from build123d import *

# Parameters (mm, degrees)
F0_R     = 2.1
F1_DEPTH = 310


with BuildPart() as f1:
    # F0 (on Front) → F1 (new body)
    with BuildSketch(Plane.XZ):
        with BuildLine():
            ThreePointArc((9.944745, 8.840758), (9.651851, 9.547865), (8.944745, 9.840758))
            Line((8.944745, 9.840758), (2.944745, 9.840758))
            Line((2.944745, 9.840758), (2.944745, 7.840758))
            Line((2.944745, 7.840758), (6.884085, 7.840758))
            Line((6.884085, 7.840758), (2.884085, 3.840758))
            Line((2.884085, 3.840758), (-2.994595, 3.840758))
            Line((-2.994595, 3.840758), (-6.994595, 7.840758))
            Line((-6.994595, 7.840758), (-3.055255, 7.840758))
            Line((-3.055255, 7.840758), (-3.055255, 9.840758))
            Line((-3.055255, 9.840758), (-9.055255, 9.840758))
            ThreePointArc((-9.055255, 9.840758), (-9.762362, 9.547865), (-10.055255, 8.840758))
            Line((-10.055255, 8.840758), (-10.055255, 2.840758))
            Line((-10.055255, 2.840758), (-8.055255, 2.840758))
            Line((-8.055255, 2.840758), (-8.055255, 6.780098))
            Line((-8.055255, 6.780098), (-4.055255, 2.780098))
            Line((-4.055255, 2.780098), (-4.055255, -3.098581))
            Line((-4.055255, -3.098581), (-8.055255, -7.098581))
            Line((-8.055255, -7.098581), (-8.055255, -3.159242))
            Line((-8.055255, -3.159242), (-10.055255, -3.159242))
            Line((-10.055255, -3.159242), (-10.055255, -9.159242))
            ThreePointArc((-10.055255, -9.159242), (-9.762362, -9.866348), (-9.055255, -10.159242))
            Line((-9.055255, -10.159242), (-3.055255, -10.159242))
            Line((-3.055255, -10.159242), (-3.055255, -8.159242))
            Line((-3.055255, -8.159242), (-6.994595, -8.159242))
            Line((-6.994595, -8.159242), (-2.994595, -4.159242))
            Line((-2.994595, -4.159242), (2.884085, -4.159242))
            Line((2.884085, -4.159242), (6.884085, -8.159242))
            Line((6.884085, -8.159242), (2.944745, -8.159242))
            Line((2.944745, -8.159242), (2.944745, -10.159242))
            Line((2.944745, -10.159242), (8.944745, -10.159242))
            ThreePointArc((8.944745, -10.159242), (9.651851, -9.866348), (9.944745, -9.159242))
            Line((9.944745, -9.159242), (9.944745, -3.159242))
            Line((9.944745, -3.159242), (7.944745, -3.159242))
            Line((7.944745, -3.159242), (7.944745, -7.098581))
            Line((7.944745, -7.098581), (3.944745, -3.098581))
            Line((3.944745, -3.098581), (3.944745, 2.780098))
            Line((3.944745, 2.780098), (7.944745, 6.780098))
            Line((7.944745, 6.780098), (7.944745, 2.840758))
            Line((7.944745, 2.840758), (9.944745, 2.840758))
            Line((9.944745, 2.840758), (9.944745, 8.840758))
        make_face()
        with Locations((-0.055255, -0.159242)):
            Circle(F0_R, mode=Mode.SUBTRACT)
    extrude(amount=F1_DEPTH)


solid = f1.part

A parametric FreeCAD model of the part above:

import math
import FreeCAD as App
import Part
import Sketcher
from FreeCAD import Vector

doc = App.newDocument("Part")
body = doc.addObject("PartDesign::Body", "Body")

sketch1 = doc.addObject("Sketcher::SketchObject", "Sketch")
body.addObject(sketch1)
sketch1.AttachmentSupport = (doc.XZ_Plane, [""])
sketch1.MapMode = "FlatFace"
sketch1.addGeometry(Part.ArcOfCircle(Part.Circle(Vector(8.944744, 8.840757, 0), Vector(0, 0, 1), 1.000001), math.radians(0.000055), math.radians(89.999945)), False)
sketch1.addGeometry(Part.LineSegment(Vector(8.944745, 9.840758, 0), Vector(2.944745, 9.840758, 0)), False)
sketch1.addGeometry(Part.LineSegment(Vector(2.944745, 9.840758, 0), Vector(2.944745, 7.840758, 0)), False)
sketch1.addGeometry(Part.LineSegment(Vector(2.944745, 7.840758, 0), Vector(6.884085, 7.840758, 0)), False)
sketch1.addGeometry(Part.LineSegment(Vector(6.884085, 7.840758, 0), Vector(2.884085, 3.840758, 0)), False)
sketch1.addGeometry(Part.LineSegment(Vector(2.884085, 3.840758, 0), Vector(-2.994595, 3.840758, 0)), False)
sketch1.addGeometry(Part.LineSegment(Vector(-2.994595, 3.840758, 0), Vector(-6.994595, 7.840758, 0)), False)
sketch1.addGeometry(Part.LineSegment(Vector(-6.994595, 7.840758, 0), Vector(-3.055255, 7.840758, 0)), False)
sketch1.addGeometry(Part.LineSegment(Vector(-3.055255, 7.840758, 0), Vector(-3.055255, 9.840758, 0)), False)
sketch1.addGeometry(Part.LineSegment(Vector(-3.055255, 9.840758, 0), Vector(-9.055255, 9.840758, 0)), False)
sketch1.addGeometry(Part.ArcOfCircle(Part.Circle(Vector(-9.055256, 8.840759, 0), Vector(0, 0, 1), 0.999999), math.radians(89.999957), math.radians(180.000043)), False)
sketch1.addGeometry(Part.LineSegment(Vector(-10.055255, 8.840758, 0), Vector(-10.055255, 2.840758, 0)), False)
sketch1.addGeometry(Part.LineSegment(Vector(-10.055255, 2.840758, 0), Vector(-8.055255, 2.840758, 0)), False)
sketch1.addGeometry(Part.LineSegment(Vector(-8.055255, 2.840758, 0), Vector(-8.055255, 6.780098, 0)), False)
sketch1.addGeometry(Part.LineSegment(Vector(-8.055255, 6.780098, 0), Vector(-4.055255, 2.780098, 0)), False)
sketch1.addGeometry(Part.LineSegment(Vector(-4.055255, 2.780098, 0), Vector(-4.055255, -3.098581, 0)), False)
sketch1.addGeometry(Part.LineSegment(Vector(-4.055255, -3.098581, 0), Vector(-8.055255, -7.098581, 0)), False)
sketch1.addGeometry(Part.LineSegment(Vector(-8.055255, -7.098581, 0), Vector(-8.055255, -3.159242, 0)), False)
sketch1.addGeometry(Part.LineSegment(Vector(-8.055255, -3.159242, 0), Vector(-10.055255, -3.159242, 0)), False)
sketch1.addGeometry(Part.LineSegment(Vector(-10.055255, -3.159242, 0), Vector(-10.055255, -9.159242, 0)), False)
sketch1.addGeometry(Part.ArcOfCircle(Part.Circle(Vector(-9.055254, -9.159241, 0), Vector(0, 0, 1), 1.000001), math.radians(-179.999945), math.radians(-90.000055)), False)
sketch1.addGeometry(Part.LineSegment(Vector(-9.055255, -10.159242, 0), Vector(-3.055255, -10.159242, 0)), False)
sketch1.addGeometry(Part.LineSegment(Vector(-3.055255, -10.159242, 0), Vector(-3.055255, -8.159242, 0)), False)
sketch1.addGeometry(Part.LineSegment(Vector(-3.055255, -8.159242, 0), Vector(-6.994595, -8.159242, 0)), False)
sketch1.addGeometry(Part.LineSegment(Vector(-6.994595, -8.159242, 0), Vector(-2.994595, -4.159242, 0)), False)
sketch1.addGeometry(Part.LineSegment(Vector(-2.994595, -4.159242, 0), Vector(2.884085, -4.159242, 0)), False)
sketch1.addGeometry(Part.LineSegment(Vector(2.884085, -4.159242, 0), Vector(6.884085, -8.159242, 0)), False)
sketch1.addGeometry(Part.LineSegment(Vector(6.884085, -8.159242, 0), Vector(2.944745, -8.159242, 0)), False)
sketch1.addGeometry(Part.LineSegment(Vector(2.944745, -8.159242, 0), Vector(2.944745, -10.159242, 0)), False)
sketch1.addGeometry(Part.LineSegment(Vector(2.944745, -10.159242, 0), Vector(8.944745, -10.159242, 0)), False)
sketch1.addGeometry(Part.ArcOfCircle(Part.Circle(Vector(8.944742, -9.159239, 0), Vector(0, 0, 1), 1.000003), math.radians(-89.999847), math.radians(-0.000153)), False)
sketch1.addGeometry(Part.LineSegment(Vector(9.944745, -9.159242, 0), Vector(9.944745, -3.159242, 0)), False)
sketch1.addGeometry(Part.LineSegment(Vector(9.944745, -3.159242, 0), Vector(7.944745, -3.159242, 0)), False)
sketch1.addGeometry(Part.LineSegment(Vector(7.944745, -3.159242, 0), Vector(7.944745, -7.098581, 0)), False)
sketch1.addGeometry(Part.LineSegment(Vector(7.944745, -7.098581, 0), Vector(3.944745, -3.098581, 0)), False)
sketch1.addGeometry(Part.LineSegment(Vector(3.944745, -3.098581, 0), Vector(3.944745, 2.780098, 0)), False)
sketch1.addGeometry(Part.LineSegment(Vector(3.944745, 2.780098, 0), Vector(7.944745, 6.780098, 0)), False)
sketch1.addGeometry(Part.LineSegment(Vector(7.944745, 6.780098, 0), Vector(7.944745, 2.840758, 0)), False)
sketch1.addGeometry(Part.LineSegment(Vector(7.944745, 2.840758, 0), Vector(9.944745, 2.840758, 0)), False)
sketch1.addGeometry(Part.LineSegment(Vector(9.944745, 2.840758, 0), Vector(9.944745, 8.840758, 0)), False)
sketch1.addGeometry(Part.Circle(Vector(-0.055255, -0.159242, 0), Vector(0, 0, 1), 2.1), False)
sketch1.addConstraint(Sketcher.Constraint("Tangent", 0, 2, 1, 1))
sketch1.addConstraint(Sketcher.Constraint("Coincident", 1, 2, 2, 1))
sketch1.addConstraint(Sketcher.Constraint("Coincident", 2, 2, 3, 1))
sketch1.addConstraint(Sketcher.Constraint("Coincident", 3, 2, 4, 1))
sketch1.addConstraint(Sketcher.Constraint("Coincident", 4, 2, 5, 1))
sketch1.addConstraint(Sketcher.Constraint("Coincident", 5, 2, 6, 1))
sketch1.addConstraint(Sketcher.Constraint("Coincident", 6, 2, 7, 1))
sketch1.addConstraint(Sketcher.Constraint("Coincident", 7, 2, 8, 1))
sketch1.addConstraint(Sketcher.Constraint("Coincident", 8, 2, 9, 1))
sketch1.addConstraint(Sketcher.Constraint("Tangent", 9, 2, 10, 1))
sketch1.addConstraint(Sketcher.Constraint("Tangent", 10, 2, 11, 1))
sketch1.addConstraint(Sketcher.Constraint("Coincident", 11, 2, 12, 1))
sketch1.addConstraint(Sketcher.Constraint("Coincident", 12, 2, 13, 1))
sketch1.addConstraint(Sketcher.Constraint("Coincident", 13, 2, 14, 1))
sketch1.addConstraint(Sketcher.Constraint("Coincident", 14, 2, 15, 1))
sketch1.addConstraint(Sketcher.Constraint("Coincident", 15, 2, 16, 1))
sketch1.addConstraint(Sketcher.Constraint("Coincident", 16, 2, 17, 1))
sketch1.addConstraint(Sketcher.Constraint("Coincident", 17, 2, 18, 1))
sketch1.addConstraint(Sketcher.Constraint("Coincident", 18, 2, 19, 1))
sketch1.addConstraint(Sketcher.Constraint("Tangent", 19, 2, 20, 1))
sketch1.addConstraint(Sketcher.Constraint("Tangent", 20, 2, 21, 1))
sketch1.addConstraint(Sketcher.Constraint("Coincident", 21, 2, 22, 1))
sketch1.addConstraint(Sketcher.Constraint("Coincident", 22, 2, 23, 1))
sketch1.addConstraint(Sketcher.Constraint("Coincident", 23, 2, 24, 1))
sketch1.addConstraint(Sketcher.Constraint("Coincident", 24, 2, 25, 1))
sketch1.addConstraint(Sketcher.Constraint("Coincident", 25, 2, 26, 1))
sketch1.addConstraint(Sketcher.Constraint("Coincident", 26, 2, 27, 1))
sketch1.addConstraint(Sketcher.Constraint("Coincident", 27, 2, 28, 1))
sketch1.addConstraint(Sketcher.Constraint("Coincident", 28, 2, 29, 1))
sketch1.addConstraint(Sketcher.Constraint("Coincident", 29, 2, 30, 1))
sketch1.addConstraint(Sketcher.Constraint("Coincident", 30, 2, 31, 1))
sketch1.addConstraint(Sketcher.Constraint("Coincident", 31, 2, 32, 1))
sketch1.addConstraint(Sketcher.Constraint("Coincident", 32, 2, 33, 1))
sketch1.addConstraint(Sketcher.Constraint("Coincident", 33, 2, 34, 1))
sketch1.addConstraint(Sketcher.Constraint("Coincident", 34, 2, 35, 1))
sketch1.addConstraint(Sketcher.Constraint("Coincident", 35, 2, 36, 1))
sketch1.addConstraint(Sketcher.Constraint("Coincident", 36, 2, 37, 1))
sketch1.addConstraint(Sketcher.Constraint("Coincident", 37, 2, 38, 1))
sketch1.addConstraint(Sketcher.Constraint("Coincident", 38, 2, 39, 1))
sketch1.addConstraint(Sketcher.Constraint("Tangent", 39, 2, 0, 1))
sketch1.addConstraint(Sketcher.Constraint("Horizontal", 1))
sketch1.addConstraint(Sketcher.Constraint("Vertical", 2))
sketch1.addConstraint(Sketcher.Constraint("Horizontal", 3))
sketch1.addConstraint(Sketcher.Constraint("Horizontal", 5))
sketch1.addConstraint(Sketcher.Constraint("Horizontal", 7))
sketch1.addConstraint(Sketcher.Constraint("Vertical", 8))
sketch1.addConstraint(Sketcher.Constraint("Horizontal", 9))
sketch1.addConstraint(Sketcher.Constraint("Vertical", 11))
sketch1.addConstraint(Sketcher.Constraint("Horizontal", 12))
sketch1.addConstraint(Sketcher.Constraint("Vertical", 13))
sketch1.addConstraint(Sketcher.Constraint("Vertical", 15))
sketch1.addConstraint(Sketcher.Constraint("Vertical", 17))
sketch1.addConstraint(Sketcher.Constraint("Horizontal", 18))
sketch1.addConstraint(Sketcher.Constraint("Vertical", 19))
sketch1.addConstraint(Sketcher.Constraint("Horizontal", 21))
sketch1.addConstraint(Sketcher.Constraint("Vertical", 22))
sketch1.addConstraint(Sketcher.Constraint("Horizontal", 23))
sketch1.addConstraint(Sketcher.Constraint("Horizontal", 25))
sketch1.addConstraint(Sketcher.Constraint("Horizontal", 27))
sketch1.addConstraint(Sketcher.Constraint("Vertical", 28))
sketch1.addConstraint(Sketcher.Constraint("Horizontal", 29))
sketch1.addConstraint(Sketcher.Constraint("Vertical", 31))
sketch1.addConstraint(Sketcher.Constraint("Horizontal", 32))
sketch1.addConstraint(Sketcher.Constraint("Vertical", 33))
sketch1.addConstraint(Sketcher.Constraint("Vertical", 35))
sketch1.addConstraint(Sketcher.Constraint("Vertical", 37))
sketch1.addConstraint(Sketcher.Constraint("Horizontal", 38))
sketch1.addConstraint(Sketcher.Constraint("Vertical", 39))
sketch1.addConstraint(Sketcher.Constraint("Equal", 0, 10))
sketch1.addConstraint(Sketcher.Constraint("Equal", 10, 20))
sketch1.addConstraint(Sketcher.Constraint("Equal", 20, 30))
sketch1.addConstraint(Sketcher.Constraint("Perpendicular", 4, 6))
sketch1.addConstraint(Sketcher.Constraint("Parallel", 6, 14))
sketch1.addConstraint(Sketcher.Constraint("Perpendicular", 14, 16))
sketch1.addConstraint(Sketcher.Constraint("Parallel", 16, 24))
sketch1.addConstraint(Sketcher.Constraint("Perpendicular", 24, 26))
sketch1.addConstraint(Sketcher.Constraint("Parallel", 26, 34))
sketch1.addConstraint(Sketcher.Constraint("Perpendicular", 34, 36))
sketch1.addConstraint(Sketcher.Constraint("Horizontal", 0, 3, 10, 3))
sketch1.addConstraint(Sketcher.Constraint("Horizontal", 20, 3, 30, 3))
sketch1.addConstraint(Sketcher.Constraint("Horizontal", 3, 2, 6, 2))
sketch1.addConstraint(Sketcher.Constraint("Horizontal", 23, 2, 26, 2))
sketch1.addConstraint(Sketcher.Constraint("Horizontal", 19, 2, 30, 2))
sketch1.addConstraint(Sketcher.Constraint("Horizontal", 18, 2, 31, 2))
sketch1.addConstraint(Sketcher.Constraint("Horizontal", 16, 2, 33, 2))
sketch1.addConstraint(Sketcher.Constraint("Horizontal", 15, 2, 34, 2))
sketch1.addConstraint(Sketcher.Constraint("Horizontal", 14, 2, 35, 2))
sketch1.addConstraint(Sketcher.Constraint("Horizontal", 13, 2, 36, 2))
sketch1.addConstraint(Sketcher.Constraint("Horizontal", 12, 2, 37, 2))
sketch1.addConstraint(Sketcher.Constraint("Vertical", 10, 3, 20, 3))
sketch1.addConstraint(Sketcher.Constraint("Vertical", 0, 3, 30, 3))
sketch1.addConstraint(Sketcher.Constraint("Vertical", 13, 2, 16, 2))
sketch1.addConstraint(Sketcher.Constraint("Vertical", 8, 2, 21, 2))
sketch1.addConstraint(Sketcher.Constraint("Vertical", 6, 2, 23, 2))
sketch1.addConstraint(Sketcher.Constraint("Vertical", 5, 2, 24, 2))
sketch1.addConstraint(Sketcher.Constraint("Vertical", 4, 2, 25, 2))
sketch1.addConstraint(Sketcher.Constraint("Vertical", 3, 2, 26, 2))
sketch1.addConstraint(Sketcher.Constraint("Vertical", 2, 2, 27, 2))
sketch1.addConstraint(Sketcher.Constraint("Vertical", 0, 2, 29, 2))
sketch1.addConstraint(Sketcher.Constraint("Equal", 3, 7))
sketch1.addConstraint(Sketcher.Constraint("Equal", 1, 9))
sketch1.addConstraint(Sketcher.Constraint("Equal", 18, 32))
sketch1.addConstraint(Sketcher.Constraint("Equal", 38, 2))
sketch1.addConstraint(Sketcher.Constraint("Equal", 29, 11))
sketch1.addConstraint(Sketcher.Constraint("Equal", 27, 13))
sketch1.addConstraint(Sketcher.Constraint("Equal", 25, 15))
sketch1.addConstraint(Sketcher.Constraint("Equal", 13, 17))
sketch1.addConstraint(Sketcher.Constraint("Equal", 11, 19))
sketch1.addConstraint(Sketcher.Constraint("Equal", 8, 22))
sketch1.addConstraint(Sketcher.Constraint("Equal", 6, 14))
sketch1.addConstraint(Sketcher.Constraint("Radius", 0, 1.000001))
sketch1.addConstraint(Sketcher.Constraint("Diameter", 40, 4.2))
sketch1.addConstraint(Sketcher.Constraint("DistanceX", 1, 2, 1, 1, 6.0))
sketch1.addConstraint(Sketcher.Constraint("DistanceX", 12, 1, 12, 2, 2.0))
sketch1.addConstraint(Sketcher.Constraint("DistanceX", 10, 3, 0, 3, 18.0))
sketch1.addConstraint(Sketcher.Constraint("DistanceX", 20, 3, 40, 3, 8.999999))
sketch1.addConstraint(Sketcher.Constraint("DistanceY", 20, 3, 40, 3, 8.999999))
sketch1.addConstraint(Sketcher.Constraint("DistanceY", 4, 2, 2, 2, 4.0))
sketch1.addConstraint(Sketcher.Constraint("DistanceX", 3, 1, 3, 2, 3.93934))
sketch1.addConstraint(Sketcher.Constraint("DistanceY", -1, 1, 14, 2, 2.780098))
sketch1.addConstraint(Sketcher.Constraint("DistanceX", -1, 1, 0, 3, 8.944744))
pad1 = doc.addObject("PartDesign::Pad", "Pad")
body.addObject(pad1)
pad1.Profile = sketch1
pad1.Length = 310

doc.recompute()
